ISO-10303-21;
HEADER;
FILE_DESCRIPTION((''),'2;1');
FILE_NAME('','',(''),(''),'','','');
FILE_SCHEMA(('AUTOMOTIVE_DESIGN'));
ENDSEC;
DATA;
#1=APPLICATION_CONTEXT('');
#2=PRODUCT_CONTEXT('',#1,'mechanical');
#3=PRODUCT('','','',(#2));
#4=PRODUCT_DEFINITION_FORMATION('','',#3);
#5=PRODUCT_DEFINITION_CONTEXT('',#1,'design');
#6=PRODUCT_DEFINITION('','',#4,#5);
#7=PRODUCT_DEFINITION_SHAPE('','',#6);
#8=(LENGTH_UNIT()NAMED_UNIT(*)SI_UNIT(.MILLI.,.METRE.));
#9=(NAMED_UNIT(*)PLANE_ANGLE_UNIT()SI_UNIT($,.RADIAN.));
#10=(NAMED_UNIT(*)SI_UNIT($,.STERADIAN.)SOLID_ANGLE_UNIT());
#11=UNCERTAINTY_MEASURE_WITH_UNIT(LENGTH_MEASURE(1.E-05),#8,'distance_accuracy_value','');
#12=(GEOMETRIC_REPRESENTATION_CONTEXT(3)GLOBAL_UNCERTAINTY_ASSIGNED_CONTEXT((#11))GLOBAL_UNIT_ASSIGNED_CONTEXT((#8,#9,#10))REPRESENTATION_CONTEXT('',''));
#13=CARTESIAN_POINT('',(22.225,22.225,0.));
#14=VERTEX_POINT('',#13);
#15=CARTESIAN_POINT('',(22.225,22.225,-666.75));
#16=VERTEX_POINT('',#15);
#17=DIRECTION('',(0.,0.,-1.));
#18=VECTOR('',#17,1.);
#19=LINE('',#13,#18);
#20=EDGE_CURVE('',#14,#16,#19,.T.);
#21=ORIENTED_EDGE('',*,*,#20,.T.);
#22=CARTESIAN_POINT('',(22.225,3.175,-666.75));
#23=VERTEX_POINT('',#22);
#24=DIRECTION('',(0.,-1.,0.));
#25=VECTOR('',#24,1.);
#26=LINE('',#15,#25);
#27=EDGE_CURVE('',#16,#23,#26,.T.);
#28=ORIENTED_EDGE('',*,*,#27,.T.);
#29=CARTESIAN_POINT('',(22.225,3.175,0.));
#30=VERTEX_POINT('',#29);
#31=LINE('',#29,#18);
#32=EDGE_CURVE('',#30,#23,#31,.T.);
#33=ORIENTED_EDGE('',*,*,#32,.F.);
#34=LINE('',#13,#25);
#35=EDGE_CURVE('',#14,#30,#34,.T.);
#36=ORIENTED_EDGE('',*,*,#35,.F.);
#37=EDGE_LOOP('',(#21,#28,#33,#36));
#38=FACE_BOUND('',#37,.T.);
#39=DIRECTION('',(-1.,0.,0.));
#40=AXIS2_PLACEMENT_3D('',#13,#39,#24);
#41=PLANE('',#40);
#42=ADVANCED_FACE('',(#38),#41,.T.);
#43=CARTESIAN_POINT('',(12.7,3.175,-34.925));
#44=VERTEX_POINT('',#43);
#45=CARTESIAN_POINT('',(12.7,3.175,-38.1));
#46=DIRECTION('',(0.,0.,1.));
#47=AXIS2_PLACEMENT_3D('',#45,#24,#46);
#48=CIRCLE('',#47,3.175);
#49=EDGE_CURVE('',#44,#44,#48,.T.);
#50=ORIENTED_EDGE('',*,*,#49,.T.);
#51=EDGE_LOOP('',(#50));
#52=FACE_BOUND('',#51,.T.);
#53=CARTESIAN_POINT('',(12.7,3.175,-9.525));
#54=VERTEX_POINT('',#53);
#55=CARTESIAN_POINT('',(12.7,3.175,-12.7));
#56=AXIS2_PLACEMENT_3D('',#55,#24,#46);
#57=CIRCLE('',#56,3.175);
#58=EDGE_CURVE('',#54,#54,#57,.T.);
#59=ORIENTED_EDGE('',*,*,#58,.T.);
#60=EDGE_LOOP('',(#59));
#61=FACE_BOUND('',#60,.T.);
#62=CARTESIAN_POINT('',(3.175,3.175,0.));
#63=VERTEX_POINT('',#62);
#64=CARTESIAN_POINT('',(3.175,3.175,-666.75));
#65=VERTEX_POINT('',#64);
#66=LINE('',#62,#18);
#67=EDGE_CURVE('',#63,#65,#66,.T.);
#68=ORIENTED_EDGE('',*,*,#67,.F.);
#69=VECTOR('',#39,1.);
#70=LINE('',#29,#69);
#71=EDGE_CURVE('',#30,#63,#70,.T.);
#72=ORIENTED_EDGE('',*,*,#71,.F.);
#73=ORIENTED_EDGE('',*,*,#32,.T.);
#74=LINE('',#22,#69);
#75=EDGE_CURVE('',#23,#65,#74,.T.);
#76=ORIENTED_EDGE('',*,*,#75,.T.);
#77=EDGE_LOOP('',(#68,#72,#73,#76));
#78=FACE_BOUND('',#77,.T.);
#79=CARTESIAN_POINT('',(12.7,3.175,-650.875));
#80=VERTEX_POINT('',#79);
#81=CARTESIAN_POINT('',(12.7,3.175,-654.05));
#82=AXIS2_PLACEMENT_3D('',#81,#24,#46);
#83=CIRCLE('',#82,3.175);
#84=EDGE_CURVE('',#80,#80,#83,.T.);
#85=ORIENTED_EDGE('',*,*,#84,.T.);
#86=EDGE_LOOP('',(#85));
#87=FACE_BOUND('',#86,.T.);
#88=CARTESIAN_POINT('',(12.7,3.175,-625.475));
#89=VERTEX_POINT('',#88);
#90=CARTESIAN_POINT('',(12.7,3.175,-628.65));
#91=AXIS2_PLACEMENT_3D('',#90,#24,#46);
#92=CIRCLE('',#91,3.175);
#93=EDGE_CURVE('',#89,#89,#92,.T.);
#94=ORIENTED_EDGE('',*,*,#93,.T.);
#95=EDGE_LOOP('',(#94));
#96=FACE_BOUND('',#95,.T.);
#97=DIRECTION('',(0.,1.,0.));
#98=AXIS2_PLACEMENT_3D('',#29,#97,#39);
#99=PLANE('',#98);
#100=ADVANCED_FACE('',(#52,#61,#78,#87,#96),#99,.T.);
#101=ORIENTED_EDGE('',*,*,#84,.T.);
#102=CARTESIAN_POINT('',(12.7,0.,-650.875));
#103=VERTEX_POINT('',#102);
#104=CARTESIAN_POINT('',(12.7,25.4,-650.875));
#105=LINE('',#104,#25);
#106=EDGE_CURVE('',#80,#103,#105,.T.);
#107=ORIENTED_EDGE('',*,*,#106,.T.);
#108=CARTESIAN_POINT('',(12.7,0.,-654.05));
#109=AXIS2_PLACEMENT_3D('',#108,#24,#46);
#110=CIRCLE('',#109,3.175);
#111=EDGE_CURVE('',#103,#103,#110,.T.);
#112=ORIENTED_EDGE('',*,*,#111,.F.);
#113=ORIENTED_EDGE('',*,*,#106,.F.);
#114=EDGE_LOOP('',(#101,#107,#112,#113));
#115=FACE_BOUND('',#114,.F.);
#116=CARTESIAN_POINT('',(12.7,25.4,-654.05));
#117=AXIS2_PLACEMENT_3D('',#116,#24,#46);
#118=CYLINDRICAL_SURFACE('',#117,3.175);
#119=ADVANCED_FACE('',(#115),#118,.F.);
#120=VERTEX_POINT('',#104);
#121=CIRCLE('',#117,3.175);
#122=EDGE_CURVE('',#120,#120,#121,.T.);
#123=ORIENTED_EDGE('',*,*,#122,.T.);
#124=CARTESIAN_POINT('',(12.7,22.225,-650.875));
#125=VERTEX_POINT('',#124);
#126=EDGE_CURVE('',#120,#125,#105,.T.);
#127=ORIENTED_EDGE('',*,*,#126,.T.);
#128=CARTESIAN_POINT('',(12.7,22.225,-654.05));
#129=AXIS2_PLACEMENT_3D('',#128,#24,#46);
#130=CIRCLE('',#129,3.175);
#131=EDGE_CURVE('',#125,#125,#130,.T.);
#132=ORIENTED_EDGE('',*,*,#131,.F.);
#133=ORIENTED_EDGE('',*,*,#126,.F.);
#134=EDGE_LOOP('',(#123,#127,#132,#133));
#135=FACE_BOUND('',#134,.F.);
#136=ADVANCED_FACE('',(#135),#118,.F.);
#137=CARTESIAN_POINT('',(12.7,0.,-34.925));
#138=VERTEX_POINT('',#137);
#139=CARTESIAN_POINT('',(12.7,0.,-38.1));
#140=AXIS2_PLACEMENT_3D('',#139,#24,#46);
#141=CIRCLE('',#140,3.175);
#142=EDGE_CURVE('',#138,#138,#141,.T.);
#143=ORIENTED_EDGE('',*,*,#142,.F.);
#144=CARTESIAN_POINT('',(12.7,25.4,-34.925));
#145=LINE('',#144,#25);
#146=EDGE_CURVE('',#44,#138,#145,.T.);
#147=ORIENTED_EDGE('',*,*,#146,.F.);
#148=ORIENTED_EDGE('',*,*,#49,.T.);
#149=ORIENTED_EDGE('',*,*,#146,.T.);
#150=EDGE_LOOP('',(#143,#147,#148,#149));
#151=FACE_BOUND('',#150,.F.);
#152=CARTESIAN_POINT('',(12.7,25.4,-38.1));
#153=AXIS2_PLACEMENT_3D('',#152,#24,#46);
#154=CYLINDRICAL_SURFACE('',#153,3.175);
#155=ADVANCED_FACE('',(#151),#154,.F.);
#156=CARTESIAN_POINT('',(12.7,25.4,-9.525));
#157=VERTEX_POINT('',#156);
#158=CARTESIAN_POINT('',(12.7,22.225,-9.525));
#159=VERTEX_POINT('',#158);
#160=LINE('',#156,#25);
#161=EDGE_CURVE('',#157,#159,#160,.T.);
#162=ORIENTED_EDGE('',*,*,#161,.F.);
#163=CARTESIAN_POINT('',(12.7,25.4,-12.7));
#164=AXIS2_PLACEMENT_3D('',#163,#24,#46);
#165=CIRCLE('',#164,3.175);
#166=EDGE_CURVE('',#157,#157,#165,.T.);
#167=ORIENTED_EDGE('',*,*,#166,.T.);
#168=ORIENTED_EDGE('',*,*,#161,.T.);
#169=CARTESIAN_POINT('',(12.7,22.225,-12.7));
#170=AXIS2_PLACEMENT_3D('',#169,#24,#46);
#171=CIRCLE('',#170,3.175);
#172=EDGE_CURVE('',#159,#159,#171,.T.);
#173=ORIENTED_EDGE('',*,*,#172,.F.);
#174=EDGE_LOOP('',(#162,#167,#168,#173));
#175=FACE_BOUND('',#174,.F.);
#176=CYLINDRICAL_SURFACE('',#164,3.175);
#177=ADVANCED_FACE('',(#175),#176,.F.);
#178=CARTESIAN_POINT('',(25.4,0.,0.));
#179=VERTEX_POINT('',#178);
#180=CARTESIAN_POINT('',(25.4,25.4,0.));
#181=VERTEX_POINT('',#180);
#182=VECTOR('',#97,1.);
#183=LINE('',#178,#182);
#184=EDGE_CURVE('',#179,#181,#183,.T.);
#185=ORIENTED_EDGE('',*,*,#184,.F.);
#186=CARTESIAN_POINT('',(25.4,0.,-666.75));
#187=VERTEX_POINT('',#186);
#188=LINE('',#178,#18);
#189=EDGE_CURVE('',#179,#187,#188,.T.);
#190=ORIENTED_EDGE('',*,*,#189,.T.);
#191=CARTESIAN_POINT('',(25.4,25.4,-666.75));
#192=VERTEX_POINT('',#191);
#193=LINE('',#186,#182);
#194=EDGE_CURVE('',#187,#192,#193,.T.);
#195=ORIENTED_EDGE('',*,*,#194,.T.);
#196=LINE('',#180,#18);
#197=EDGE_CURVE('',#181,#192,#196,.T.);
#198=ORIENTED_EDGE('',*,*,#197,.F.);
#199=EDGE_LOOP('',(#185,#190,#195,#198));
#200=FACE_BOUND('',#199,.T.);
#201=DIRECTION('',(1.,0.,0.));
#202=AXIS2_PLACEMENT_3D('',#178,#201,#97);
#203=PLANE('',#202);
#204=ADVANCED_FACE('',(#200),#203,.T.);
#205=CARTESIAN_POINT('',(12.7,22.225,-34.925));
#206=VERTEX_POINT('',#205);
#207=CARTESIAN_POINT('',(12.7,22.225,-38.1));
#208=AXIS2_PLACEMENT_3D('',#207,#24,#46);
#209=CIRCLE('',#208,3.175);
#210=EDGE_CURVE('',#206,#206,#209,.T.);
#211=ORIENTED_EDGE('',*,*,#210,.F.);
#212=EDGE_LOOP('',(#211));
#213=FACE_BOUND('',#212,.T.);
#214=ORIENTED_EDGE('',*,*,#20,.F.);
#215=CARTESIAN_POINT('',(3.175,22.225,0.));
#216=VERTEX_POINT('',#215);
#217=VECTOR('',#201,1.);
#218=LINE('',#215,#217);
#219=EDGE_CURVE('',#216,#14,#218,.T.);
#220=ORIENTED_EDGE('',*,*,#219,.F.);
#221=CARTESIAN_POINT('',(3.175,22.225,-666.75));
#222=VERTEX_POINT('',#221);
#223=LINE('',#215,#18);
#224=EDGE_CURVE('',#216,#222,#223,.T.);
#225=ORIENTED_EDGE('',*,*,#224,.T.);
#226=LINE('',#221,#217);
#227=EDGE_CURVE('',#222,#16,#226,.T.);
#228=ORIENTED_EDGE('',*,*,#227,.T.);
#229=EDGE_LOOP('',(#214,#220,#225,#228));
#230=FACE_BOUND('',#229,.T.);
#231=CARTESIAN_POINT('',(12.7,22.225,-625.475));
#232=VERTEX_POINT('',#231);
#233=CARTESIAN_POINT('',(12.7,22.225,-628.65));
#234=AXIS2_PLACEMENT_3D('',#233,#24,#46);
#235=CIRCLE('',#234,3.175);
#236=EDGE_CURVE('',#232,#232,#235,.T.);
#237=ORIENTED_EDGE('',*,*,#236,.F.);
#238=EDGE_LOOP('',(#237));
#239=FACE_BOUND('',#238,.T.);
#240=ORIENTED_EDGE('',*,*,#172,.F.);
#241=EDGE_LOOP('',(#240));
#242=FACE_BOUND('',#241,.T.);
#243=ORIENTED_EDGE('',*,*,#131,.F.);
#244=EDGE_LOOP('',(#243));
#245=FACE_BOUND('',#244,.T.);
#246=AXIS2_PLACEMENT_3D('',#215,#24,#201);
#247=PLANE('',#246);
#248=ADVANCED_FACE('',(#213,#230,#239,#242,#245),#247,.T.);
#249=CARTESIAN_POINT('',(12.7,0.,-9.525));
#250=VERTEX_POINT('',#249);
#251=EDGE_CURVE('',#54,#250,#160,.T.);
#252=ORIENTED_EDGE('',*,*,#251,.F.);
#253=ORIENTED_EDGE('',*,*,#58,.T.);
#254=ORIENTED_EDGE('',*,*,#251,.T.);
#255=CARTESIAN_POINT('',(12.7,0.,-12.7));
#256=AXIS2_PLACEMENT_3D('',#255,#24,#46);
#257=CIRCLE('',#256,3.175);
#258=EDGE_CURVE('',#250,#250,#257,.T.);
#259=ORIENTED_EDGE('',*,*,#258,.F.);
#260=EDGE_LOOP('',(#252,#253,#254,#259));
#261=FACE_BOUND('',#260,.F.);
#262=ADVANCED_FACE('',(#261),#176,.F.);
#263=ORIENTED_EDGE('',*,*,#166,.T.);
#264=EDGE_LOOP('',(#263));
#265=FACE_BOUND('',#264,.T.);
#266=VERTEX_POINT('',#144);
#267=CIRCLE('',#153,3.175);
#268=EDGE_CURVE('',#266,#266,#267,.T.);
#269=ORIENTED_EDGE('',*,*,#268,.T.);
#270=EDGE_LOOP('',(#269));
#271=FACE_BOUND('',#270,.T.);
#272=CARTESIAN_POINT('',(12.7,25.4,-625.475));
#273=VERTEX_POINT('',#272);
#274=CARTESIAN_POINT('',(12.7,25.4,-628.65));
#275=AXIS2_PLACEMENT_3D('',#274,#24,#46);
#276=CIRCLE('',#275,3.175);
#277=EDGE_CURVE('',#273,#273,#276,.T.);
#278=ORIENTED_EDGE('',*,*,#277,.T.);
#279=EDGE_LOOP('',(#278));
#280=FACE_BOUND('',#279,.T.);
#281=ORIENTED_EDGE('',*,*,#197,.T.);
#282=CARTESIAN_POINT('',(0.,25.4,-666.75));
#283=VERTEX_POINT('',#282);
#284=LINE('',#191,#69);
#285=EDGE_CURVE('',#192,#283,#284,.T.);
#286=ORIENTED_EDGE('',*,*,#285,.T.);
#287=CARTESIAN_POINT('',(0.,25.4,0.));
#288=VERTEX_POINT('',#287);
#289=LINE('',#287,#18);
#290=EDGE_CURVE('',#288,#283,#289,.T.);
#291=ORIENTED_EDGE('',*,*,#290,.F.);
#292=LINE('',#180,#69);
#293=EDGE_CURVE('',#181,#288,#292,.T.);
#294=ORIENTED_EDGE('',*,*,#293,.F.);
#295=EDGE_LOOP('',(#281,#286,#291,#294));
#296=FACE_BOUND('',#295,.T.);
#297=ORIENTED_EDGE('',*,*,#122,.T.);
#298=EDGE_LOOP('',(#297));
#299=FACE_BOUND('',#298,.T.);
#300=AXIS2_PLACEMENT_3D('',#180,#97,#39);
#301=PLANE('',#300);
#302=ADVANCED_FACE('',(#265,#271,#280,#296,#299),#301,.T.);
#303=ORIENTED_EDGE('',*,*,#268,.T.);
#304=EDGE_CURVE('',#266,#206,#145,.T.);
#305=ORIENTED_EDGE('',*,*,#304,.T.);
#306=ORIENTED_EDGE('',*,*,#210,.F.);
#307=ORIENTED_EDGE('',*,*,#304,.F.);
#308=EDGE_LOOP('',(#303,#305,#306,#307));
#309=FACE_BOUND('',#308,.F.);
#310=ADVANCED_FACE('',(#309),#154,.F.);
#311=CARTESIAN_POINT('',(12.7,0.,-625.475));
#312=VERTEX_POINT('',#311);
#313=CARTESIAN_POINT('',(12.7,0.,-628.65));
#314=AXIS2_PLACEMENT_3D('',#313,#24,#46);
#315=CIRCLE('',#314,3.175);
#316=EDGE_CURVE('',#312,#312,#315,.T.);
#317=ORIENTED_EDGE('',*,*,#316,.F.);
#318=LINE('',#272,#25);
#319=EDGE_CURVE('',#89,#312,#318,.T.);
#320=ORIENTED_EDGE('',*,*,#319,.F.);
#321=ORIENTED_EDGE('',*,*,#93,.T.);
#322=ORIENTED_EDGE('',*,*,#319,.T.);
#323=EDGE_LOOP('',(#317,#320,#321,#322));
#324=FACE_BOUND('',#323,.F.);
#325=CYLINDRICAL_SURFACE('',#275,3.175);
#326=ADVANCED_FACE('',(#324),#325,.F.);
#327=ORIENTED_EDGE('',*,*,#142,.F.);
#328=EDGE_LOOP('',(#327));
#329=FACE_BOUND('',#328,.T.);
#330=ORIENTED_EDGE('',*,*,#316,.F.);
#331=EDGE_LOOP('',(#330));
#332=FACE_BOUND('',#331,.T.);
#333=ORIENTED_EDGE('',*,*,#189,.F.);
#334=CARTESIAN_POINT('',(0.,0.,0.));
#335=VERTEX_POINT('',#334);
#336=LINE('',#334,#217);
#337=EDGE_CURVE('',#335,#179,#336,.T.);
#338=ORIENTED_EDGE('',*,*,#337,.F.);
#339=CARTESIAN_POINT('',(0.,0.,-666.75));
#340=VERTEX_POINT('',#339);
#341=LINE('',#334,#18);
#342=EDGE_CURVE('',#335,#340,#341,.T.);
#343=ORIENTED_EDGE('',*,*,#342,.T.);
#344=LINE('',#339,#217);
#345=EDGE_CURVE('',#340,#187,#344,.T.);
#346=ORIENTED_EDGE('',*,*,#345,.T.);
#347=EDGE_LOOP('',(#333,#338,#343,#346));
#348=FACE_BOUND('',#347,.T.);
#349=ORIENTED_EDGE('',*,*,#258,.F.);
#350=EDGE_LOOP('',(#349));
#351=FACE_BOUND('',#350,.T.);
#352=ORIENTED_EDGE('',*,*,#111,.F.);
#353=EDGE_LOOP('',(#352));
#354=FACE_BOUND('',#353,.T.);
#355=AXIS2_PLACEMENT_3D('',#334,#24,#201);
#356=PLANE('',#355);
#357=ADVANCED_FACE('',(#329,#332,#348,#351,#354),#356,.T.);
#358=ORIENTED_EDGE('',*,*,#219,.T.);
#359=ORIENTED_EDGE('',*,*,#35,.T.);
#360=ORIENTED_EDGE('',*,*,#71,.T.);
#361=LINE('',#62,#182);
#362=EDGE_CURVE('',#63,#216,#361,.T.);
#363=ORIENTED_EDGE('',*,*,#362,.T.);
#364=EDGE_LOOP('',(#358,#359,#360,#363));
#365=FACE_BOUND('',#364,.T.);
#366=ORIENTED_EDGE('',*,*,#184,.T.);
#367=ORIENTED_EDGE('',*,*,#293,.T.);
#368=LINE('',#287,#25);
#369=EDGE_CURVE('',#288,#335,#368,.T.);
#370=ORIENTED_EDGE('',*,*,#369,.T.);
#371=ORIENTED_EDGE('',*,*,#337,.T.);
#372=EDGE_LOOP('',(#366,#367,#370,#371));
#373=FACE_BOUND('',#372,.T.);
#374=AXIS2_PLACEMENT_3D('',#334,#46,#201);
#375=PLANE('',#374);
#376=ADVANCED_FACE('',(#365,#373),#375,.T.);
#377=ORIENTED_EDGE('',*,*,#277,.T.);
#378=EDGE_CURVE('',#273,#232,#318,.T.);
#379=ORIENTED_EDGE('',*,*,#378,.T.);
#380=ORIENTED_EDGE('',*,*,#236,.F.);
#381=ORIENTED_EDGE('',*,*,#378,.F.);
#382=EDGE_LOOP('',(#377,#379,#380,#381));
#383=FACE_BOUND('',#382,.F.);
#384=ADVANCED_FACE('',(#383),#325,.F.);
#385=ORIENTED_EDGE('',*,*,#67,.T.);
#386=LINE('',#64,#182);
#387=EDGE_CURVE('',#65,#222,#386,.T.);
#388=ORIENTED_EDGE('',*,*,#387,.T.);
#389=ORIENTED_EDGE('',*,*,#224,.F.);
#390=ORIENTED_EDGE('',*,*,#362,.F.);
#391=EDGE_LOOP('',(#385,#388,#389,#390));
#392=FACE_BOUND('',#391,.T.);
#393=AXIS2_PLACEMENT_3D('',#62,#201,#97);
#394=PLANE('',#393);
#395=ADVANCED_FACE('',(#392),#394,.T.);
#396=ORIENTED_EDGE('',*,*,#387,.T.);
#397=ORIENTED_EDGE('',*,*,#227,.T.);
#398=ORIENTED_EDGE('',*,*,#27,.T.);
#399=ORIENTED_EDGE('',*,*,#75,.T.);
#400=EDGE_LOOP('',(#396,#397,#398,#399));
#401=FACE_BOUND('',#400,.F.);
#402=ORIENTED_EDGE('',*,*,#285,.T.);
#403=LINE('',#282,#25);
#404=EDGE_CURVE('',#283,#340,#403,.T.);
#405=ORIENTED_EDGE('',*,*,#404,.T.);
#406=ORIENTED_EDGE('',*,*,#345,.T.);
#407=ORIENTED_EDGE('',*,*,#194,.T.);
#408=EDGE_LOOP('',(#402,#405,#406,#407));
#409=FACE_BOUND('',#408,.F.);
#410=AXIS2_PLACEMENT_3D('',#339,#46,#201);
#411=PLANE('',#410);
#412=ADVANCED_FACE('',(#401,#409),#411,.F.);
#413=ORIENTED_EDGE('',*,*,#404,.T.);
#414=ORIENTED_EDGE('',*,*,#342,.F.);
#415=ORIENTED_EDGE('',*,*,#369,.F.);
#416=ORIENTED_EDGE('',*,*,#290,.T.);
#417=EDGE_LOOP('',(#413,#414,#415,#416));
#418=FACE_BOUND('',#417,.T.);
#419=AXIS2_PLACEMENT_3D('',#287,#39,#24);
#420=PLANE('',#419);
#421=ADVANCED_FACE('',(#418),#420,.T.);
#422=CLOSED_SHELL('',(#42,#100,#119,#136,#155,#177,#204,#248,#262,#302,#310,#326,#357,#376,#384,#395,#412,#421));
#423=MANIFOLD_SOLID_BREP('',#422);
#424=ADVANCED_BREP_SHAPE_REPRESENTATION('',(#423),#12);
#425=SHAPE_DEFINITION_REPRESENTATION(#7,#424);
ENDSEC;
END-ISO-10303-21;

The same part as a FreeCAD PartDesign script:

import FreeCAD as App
import Part
import Sketcher
from FreeCAD import Vector
Q = App.Units.Quantity


def add_polygon(sketch, points):
    """Adds a closed chain of lines whose ends are joined by coincident constraints."""
    first, n = sketch.GeometryCount, len(points)
    for a, b in zip(points, points[1:] + points[:1]):
        sketch.addGeometry(Part.LineSegment(App.Vector(*a, 0), App.Vector(*b, 0)), False)
    for i in range(n):
        sketch.addConstraint(Sketcher.Constraint("Coincident", first + i, 2, first + (i + 1) % n, 1))

doc = App.newDocument("Part")
body = doc.addObject("PartDesign::Body", "Body")

sketch1 = doc.addObject("Sketcher::SketchObject", "Sketch")
body.addObject(sketch1)
sketch1.AttachmentSupport = (doc.XY_Plane, [""])
sketch1.MapMode = "FlatFace"
add_polygon(sketch1, [(0, 25), (0, 0), (25, 0), (25, 25)])
add_polygon(sketch1, [(3, 3), (3, 22), (22, 22), (22, 3)])
sketch1.addConstraint([
    Sketcher.Constraint("Vertical", 0),
    Sketcher.Constraint("Horizontal", 1),
    Sketcher.Constraint("Vertical", 2),
    Sketcher.Constraint("Horizontal", 3),
    Sketcher.Constraint("Vertical", 4),
    Sketcher.Constraint("Horizontal", 5),
    Sketcher.Constraint("Vertical", 6),
    Sketcher.Constraint("Horizontal", 7),
    Sketcher.Constraint("Coincident", 0, 2, -1, 1),
    Sketcher.Constraint("Equal", 3, 0),
    Sketcher.Constraint("Equal", 7, 4),
    Sketcher.Constraint("DistanceX", 1, 1, 1, 2, Q("1 in")),
    Sketcher.Constraint("DistanceX", -1, 1, 4, 2, Q("0.125 in")),
    Sketcher.Constraint("DistanceY", -1, 1, 6, 2, Q("0.125 in")),
    Sketcher.Constraint("DistanceY", 4, 2, 3, 2, Q("0.125 in")),
])
pad1 = doc.addObject("PartDesign::Pad", "Pad")
body.addObject(pad1)
pad1.Profile = sketch1
pad1.Length = Q("26.25 in")
pad1.Reversed = True

sketch2 = doc.addObject("Sketcher::SketchObject", "Sketch001")
body.addObject(sketch2)
sketch2.AttachmentSupport = (doc.XZ_Plane, [""])
sketch2.MapMode = "FlatFace"
sketch2.AttachmentOffset = App.Placement(Vector(0, 0, -1 * 25.4), App.Rotation())
sketch2.addGeometry([
    Part.Circle(Vector(12.7, -12.7, 0), Vector(0, 0, 1), 3.2),
    Part.Circle(Vector(12.7, -38.1, 0), Vector(0, 0, 1), 3.2),
    Part.Circle(Vector(12.7, -654, 0), Vector(0, 0, 1), 3.2),
    Part.Circle(Vector(12.7, -628.6, 0), Vector(0, 0, 1), 3.2),
], False)
sketch2.addConstraint([
    Sketcher.Constraint("Equal", 0, 1),
    Sketcher.Constraint("Equal", 1, 2),
    Sketcher.Constraint("Equal", 2, 3),
    Sketcher.Constraint("Vertical", 0, 3, 1, 3),
    Sketcher.Constraint("Vertical", 1, 3, 2, 3),
    Sketcher.Constraint("Vertical", 2, 3, 3, 3),
    Sketcher.Constraint("Diameter", 0, Q("0.25 in")),
    Sketcher.Constraint("DistanceY", 1, 3, 0, 3, Q("1 in")),
    Sketcher.Constraint("DistanceY", 2, 3, 3, 3, Q("1 in")),
    Sketcher.Constraint("DistanceX", -1, 1, 0, 3, Q("0.5 in")),
    Sketcher.Constraint("DistanceY", 0, 3, -1, 1, Q("0.5 in")),
    Sketcher.Constraint("DistanceY", 2, 3, -1, 1, Q("25.75 in")),
])
doc.recompute()
hole = doc.addObject("PartDesign::Hole", "Hole")
body.addObject(hole)
hole.Profile = sketch2
hole.ThreadType = "None"
hole.Diameter = Q("0.25 in")
hole.DepthType = "Dimension"
hole.Depth = Q("1 in")
hole.DrillPoint = "Angled"
hole.DrillPointAngle = 118
hole.Reversed = True

doc.recompute()
